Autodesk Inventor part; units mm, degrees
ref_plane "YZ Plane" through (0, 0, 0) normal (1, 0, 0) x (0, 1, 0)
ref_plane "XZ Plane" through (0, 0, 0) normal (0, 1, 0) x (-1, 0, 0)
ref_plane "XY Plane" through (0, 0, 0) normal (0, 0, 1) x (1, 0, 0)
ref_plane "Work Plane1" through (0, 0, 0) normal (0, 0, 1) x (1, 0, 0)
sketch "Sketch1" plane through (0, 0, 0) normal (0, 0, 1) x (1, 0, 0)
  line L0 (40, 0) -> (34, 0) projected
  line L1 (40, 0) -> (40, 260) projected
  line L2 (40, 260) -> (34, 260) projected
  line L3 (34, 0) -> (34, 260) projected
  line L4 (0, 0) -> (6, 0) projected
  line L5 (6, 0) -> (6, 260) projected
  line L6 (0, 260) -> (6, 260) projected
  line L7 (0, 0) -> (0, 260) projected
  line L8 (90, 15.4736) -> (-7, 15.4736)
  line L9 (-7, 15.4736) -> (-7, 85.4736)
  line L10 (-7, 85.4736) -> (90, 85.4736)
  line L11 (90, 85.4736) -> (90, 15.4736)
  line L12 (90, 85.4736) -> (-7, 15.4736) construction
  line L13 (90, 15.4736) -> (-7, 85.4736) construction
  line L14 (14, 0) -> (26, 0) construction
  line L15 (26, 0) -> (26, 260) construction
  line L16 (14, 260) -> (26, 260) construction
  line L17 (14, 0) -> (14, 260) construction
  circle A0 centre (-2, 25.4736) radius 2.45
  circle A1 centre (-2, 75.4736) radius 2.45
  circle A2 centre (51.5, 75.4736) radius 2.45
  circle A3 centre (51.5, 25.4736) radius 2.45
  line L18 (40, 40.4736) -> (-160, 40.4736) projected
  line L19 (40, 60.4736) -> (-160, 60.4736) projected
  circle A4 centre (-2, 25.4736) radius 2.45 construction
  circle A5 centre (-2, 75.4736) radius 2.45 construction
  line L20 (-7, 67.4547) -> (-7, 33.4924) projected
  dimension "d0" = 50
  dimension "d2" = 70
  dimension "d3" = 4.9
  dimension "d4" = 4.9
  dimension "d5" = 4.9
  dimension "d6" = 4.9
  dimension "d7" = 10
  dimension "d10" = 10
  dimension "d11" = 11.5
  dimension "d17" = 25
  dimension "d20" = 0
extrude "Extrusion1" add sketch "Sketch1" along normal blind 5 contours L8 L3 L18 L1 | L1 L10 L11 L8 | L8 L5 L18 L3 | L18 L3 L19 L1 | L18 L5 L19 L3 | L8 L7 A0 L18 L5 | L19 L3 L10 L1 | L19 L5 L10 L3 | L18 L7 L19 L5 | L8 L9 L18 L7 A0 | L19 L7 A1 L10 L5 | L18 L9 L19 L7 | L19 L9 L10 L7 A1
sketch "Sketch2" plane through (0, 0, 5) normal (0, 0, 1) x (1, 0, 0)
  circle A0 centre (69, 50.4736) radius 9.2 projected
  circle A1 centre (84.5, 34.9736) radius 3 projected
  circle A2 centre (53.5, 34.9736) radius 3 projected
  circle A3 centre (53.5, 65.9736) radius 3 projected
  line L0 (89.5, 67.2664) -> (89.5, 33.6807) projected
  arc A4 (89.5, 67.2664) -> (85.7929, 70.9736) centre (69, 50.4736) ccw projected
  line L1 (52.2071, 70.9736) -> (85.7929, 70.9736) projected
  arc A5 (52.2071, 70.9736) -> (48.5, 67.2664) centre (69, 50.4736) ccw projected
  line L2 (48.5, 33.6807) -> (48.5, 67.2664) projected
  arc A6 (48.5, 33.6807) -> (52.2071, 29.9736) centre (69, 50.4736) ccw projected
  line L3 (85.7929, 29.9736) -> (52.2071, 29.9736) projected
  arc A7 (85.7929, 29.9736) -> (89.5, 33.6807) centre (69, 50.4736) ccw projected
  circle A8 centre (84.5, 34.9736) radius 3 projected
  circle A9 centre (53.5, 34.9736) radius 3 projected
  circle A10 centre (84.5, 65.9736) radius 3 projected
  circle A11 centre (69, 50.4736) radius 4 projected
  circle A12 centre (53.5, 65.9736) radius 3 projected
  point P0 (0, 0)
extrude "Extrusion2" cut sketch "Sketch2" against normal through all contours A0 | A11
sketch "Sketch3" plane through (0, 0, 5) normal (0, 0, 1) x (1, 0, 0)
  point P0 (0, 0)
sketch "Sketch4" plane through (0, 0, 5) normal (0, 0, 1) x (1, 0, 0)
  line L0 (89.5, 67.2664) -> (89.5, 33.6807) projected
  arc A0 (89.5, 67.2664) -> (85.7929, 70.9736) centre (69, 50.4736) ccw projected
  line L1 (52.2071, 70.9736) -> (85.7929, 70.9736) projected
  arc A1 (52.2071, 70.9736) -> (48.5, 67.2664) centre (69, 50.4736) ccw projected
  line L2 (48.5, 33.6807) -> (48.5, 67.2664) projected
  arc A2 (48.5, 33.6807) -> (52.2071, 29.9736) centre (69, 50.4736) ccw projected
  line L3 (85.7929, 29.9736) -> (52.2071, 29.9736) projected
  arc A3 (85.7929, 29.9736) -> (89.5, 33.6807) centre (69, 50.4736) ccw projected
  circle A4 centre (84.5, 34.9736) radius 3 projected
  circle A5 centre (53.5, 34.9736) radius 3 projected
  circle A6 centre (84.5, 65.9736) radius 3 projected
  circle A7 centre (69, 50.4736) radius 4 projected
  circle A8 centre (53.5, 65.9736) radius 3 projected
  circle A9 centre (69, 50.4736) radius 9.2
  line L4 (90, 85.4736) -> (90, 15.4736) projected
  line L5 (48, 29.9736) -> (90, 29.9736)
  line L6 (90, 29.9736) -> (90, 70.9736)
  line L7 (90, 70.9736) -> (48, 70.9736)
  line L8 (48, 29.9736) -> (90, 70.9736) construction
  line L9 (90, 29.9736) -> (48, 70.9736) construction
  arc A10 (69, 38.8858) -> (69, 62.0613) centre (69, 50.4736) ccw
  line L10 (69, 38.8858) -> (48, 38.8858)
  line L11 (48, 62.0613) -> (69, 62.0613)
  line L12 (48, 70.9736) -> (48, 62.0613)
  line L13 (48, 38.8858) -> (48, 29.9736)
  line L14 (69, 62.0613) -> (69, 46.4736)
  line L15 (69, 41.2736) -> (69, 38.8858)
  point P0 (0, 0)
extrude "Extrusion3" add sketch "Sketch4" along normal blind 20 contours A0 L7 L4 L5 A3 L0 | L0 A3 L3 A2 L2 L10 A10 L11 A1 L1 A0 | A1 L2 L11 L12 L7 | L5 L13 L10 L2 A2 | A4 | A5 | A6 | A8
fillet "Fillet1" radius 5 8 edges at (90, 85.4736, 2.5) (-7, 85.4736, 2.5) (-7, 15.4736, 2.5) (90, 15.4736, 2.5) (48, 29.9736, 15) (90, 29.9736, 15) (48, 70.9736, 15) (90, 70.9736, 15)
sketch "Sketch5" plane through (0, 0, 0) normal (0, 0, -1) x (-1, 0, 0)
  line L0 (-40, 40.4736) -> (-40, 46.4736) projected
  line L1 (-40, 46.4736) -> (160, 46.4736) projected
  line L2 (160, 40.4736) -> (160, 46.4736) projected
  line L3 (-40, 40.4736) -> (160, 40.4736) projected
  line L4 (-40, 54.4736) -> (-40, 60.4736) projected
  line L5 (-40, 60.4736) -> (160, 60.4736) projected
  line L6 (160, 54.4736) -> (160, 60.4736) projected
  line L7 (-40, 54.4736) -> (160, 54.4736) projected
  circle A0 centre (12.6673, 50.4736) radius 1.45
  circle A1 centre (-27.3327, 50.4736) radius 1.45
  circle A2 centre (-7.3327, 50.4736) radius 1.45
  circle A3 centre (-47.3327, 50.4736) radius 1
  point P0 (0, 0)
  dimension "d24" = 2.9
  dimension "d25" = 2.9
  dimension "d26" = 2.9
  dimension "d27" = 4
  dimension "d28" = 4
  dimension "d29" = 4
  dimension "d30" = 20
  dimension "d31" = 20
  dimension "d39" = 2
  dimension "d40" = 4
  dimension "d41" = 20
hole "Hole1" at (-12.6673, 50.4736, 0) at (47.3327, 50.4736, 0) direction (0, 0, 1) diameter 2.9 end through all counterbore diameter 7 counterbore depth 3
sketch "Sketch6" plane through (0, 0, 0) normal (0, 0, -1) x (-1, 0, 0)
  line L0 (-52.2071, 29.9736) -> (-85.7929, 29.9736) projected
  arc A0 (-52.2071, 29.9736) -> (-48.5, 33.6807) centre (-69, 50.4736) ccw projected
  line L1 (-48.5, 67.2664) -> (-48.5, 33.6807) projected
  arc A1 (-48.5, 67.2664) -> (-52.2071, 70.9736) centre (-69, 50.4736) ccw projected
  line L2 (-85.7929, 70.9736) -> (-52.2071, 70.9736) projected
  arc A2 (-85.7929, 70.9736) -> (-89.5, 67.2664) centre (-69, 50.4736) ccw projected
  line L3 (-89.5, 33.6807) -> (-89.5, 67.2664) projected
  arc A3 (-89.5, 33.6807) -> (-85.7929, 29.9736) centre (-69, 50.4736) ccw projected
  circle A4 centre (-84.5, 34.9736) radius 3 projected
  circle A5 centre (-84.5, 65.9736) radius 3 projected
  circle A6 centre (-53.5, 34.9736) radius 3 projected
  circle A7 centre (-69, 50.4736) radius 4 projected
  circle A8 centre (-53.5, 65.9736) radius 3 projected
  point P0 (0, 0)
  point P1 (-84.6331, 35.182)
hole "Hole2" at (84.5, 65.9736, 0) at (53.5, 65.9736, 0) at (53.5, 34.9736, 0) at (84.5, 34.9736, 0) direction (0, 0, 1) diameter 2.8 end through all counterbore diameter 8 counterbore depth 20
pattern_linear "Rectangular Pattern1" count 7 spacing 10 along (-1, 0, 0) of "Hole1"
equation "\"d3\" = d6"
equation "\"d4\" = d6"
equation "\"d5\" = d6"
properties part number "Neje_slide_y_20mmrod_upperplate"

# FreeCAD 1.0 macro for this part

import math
import FreeCAD as App
import Part
import Sketcher
from FreeCAD import Vector


def edges_at(feature, points):
    """Names of the edges that pass closest to the given points."""
    edges = feature.Shape.Edges
    near = lambda p: min(range(len(edges)), key=lambda i: edges[i].distToShape(Part.Vertex(*p))[0])
    return sorted({f"Edge{near(p) + 1}" for p in points})


def add_polygon(sketch, points):
    """Adds a closed chain of lines whose ends are joined by coincident constraints."""
    first, n = sketch.GeometryCount, len(points)
    for a, b in zip(points, points[1:] + points[:1]):
        sketch.addGeometry(Part.LineSegment(App.Vector(*a, 0), App.Vector(*b, 0)), False)
    for i in range(n):
        sketch.addConstraint(Sketcher.Constraint("Coincident", first + i, 2, first + (i + 1) % n, 1))

doc = App.newDocument("Part")
body = doc.addObject("PartDesign::Body", "Body")

sketch1 = body.newObject("Sketcher::SketchObject", "Sketch")
sketch1.AttachmentSupport = (doc.getObject("XY_Plane"), [""])
sketch1.MapMode = "FlatFace"
add_polygon(sketch1, [(90, 15.4736), (90, 85.4736), (-7, 85.4736), (-7, 15.4736)])
sketch1.addGeometry(Part.Circle(Vector(51.5, 75.4736, 0), Vector(0, 0, 1), 2.45), False)
sketch1.addGeometry(Part.Circle(Vector(51.5, 25.4736, 0), Vector(0, 0, 1), 2.45), False)
sketch1.addGeometry(Part.Circle(Vector(-2, 25.4736, 0), Vector(0, 0, 1), 2.45), False)
sketch1.addGeometry(Part.Circle(Vector(-2, 75.4736, 0), Vector(0, 0, 1), 2.45), False)
sketch1.addConstraint(Sketcher.Constraint("Vertical", 0))
sketch1.addConstraint(Sketcher.Constraint("Horizontal", 1))
sketch1.addConstraint(Sketcher.Constraint("Vertical", 2))
sketch1.addConstraint(Sketcher.Constraint("Horizontal", 3))
sketch1.addConstraint(Sketcher.Constraint("Equal", 4, 5))
sketch1.addConstraint(Sketcher.Constraint("Equal", 5, 6))
sketch1.addConstraint(Sketcher.Constraint("Equal", 6, 7))
sketch1.addConstraint(Sketcher.Constraint("Horizontal", 5, 3, 6, 3))
sketch1.addConstraint(Sketcher.Constraint("Horizontal", 4, 3, 7, 3))
sketch1.addConstraint(Sketcher.Constraint("Vertical", 4, 3, 5, 3))
sketch1.addConstraint(Sketcher.Constraint("Vertical", 6, 3, 7, 3))
sketch1.addConstraint(Sketcher.Constraint("Diameter", 4, 4.9))
sketch1.addConstraint(Sketcher.Constraint("DistanceY", 0, 1, 0, 2, 70.0))
sketch1.addConstraint(Sketcher.Constraint("DistanceY", 5, 3, 4, 3, 50.0))
sketch1.addConstraint(Sketcher.Constraint("DistanceY", 4, 3, 0, 2, 10.0))
sketch1.addConstraint(Sketcher.Constraint("DistanceX", 1, 2, 1, 1, 97.0))
sketch1.addConstraint(Sketcher.Constraint("DistanceX", 6, 3, -1, 1, 2.0))
sketch1.addConstraint(Sketcher.Constraint("DistanceX", -1, 1, 0, 2, 90.0))
sketch1.addConstraint(Sketcher.Constraint("DistanceX", -1, 1, 4, 3, 51.5))
sketch1.addConstraint(Sketcher.Constraint("DistanceY", -1, 1, 4, 3, 75.4736))
pad1 = body.newObject("PartDesign::Pad", "Pad")
pad1.Profile = sketch1
pad1.Length = 5

sketch2 = body.newObject("Sketcher::SketchObject", "Sketch001")
sketch2.AttachmentSupport = (doc.getObject("XY_Plane"), [""])
sketch2.MapMode = "FlatFace"
sketch2.AttachmentOffset = App.Placement(Vector(0, 0, 5), App.Rotation())
sketch2.addGeometry(Part.Circle(Vector(69, 50.4736, 0), Vector(0, 0, 1), 9.2), False)
sketch2.addConstraint(Sketcher.Constraint("Diameter", 0, 18.4))
sketch2.addConstraint(Sketcher.Constraint("DistanceX", -1, 1, 0, 3, 69.0))
sketch2.addConstraint(Sketcher.Constraint("DistanceY", -1, 1, 0, 3, 50.4736))
pocket1 = body.newObject("PartDesign::Pocket", "Pocket")
pocket1.Profile = sketch2
pocket1.Type = "ThroughAll"

sketch3 = body.newObject("Sketcher::SketchObject", "Sketch002")
sketch3.AttachmentSupport = (doc.getObject("XY_Plane"), [""])
sketch3.MapMode = "FlatFace"
sketch3.AttachmentOffset = App.Placement(Vector(0, 0, 5), App.Rotation())
sketch3.addGeometry(Part.LineSegment(Vector(90, 70.9736, 0), Vector(48, 70.9736, 0)), False)
sketch3.addGeometry(Part.LineSegment(Vector(48, 70.9736, 0), Vector(48, 62.0613, 0)), False)
sketch3.addGeometry(Part.LineSegment(Vector(48, 62.0613, 0), Vector(69, 62.0613, 0)), False)
sketch3.addGeometry(Part.ArcOfCircle(Part.Circle(Vector(69, 50.4736, 0), Vector(0, 0, 1), 11.5878), math.radians(-90), math.radians(90)), False)
sketch3.addGeometry(Part.LineSegment(Vector(69, 38.8858, 0), Vector(48, 38.8858, 0)), False)
sketch3.addGeometry(Part.LineSegment(Vector(48, 38.8858, 0), Vector(48, 29.9736, 0)), False)
sketch3.addGeometry(Part.LineSegment(Vector(48, 29.9736, 0), Vector(90, 29.9736, 0)), False)
sketch3.addGeometry(Part.LineSegment(Vector(90, 29.9736, 0), Vector(90, 70.9736, 0)), False)
sketch3.addConstraint(Sketcher.Constraint("Coincident", 0, 2, 1, 1))
sketch3.addConstraint(Sketcher.Constraint("Coincident", 1, 2, 2, 1))
sketch3.addConstraint(Sketcher.Constraint("Tangent", 2, 2, 3, 2))
sketch3.addConstraint(Sketcher.Constraint("Tangent", 3, 1, 4, 1))
sketch3.addConstraint(Sketcher.Constraint("Coincident", 4, 2, 5, 1))
sketch3.addConstraint(Sketcher.Constraint("Coincident", 5, 2, 6, 1))
sketch3.addConstraint(Sketcher.Constraint("Coincident", 6, 2, 7, 1))
sketch3.addConstraint(Sketcher.Constraint("Coincident", 7, 2, 0, 1))
sketch3.addConstraint(Sketcher.Constraint("Horizontal", 0))
sketch3.addConstraint(Sketcher.Constraint("Vertical", 1))
sketch3.addConstraint(Sketcher.Constraint("Horizontal", 2))
sketch3.addConstraint(Sketcher.Constraint("Horizontal", 4))
sketch3.addConstraint(Sketcher.Constraint("Vertical", 5))
sketch3.addConstraint(Sketcher.Constraint("Horizontal", 6))
sketch3.addConstraint(Sketcher.Constraint("Vertical", 7))
sketch3.addConstraint(Sketcher.Constraint("Vertical", 1, 2, 4, 2))
sketch3.addConstraint(Sketcher.Constraint("Equal", 1, 5))
sketch3.addConstraint(Sketcher.Constraint("DistanceX", 0, 2, 0, 1, 42.0))
sketch3.addConstraint(Sketcher.Constraint("DistanceX", 2, 1, 2, 2, 21.0))
sketch3.addConstraint(Sketcher.Constraint("DistanceY", 7, 1, 7, 2, 41.0))
sketch3.addConstraint(Sketcher.Constraint("DistanceX", -1, 1, 3, 3, 69.0))
sketch3.addConstraint(Sketcher.Constraint("Radius", 3, 11.5878))
sketch3.addConstraint(Sketcher.Constraint("DistanceY", -1, 1, 3, 3, 50.4736))
pad2 = body.newObject("PartDesign::Pad", "Pad001")
pad2.Profile = sketch3
pad2.Length = 20
doc.recompute()

fillet = body.newObject("PartDesign::Fillet", "Fillet")
fillet.Base = (pad2, edges_at(pad2, [
    (90, 85.474, 2.5),
    (-7, 85.474, 2.5),
    (-7, 15.474, 2.5),
    (90, 15.474, 2.5),
    (48, 29.974, 15),
    (90, 29.974, 15),
    (48, 70.974, 15),
    (90, 70.974, 15),
]))
fillet.Radius = 5

sketch4 = body.newObject("Sketcher::SketchObject", "Sketch003")
sketch4.AttachmentSupport = (doc.getObject("XY_Plane"), [""])
sketch4.MapMode = "FlatFace"
sketch4.addGeometry(Part.Circle(Vector(-12.6673, 50.4736, 0), Vector(0, 0, 1), 1.45), False)
sketch4.addGeometry(Part.Circle(Vector(47.3327, 50.4736, 0), Vector(0, 0, 1), 1.45), False)
sketch4.addConstraint(Sketcher.Constraint("Equal", 0, 1))
sketch4.addConstraint(Sketcher.Constraint("Horizontal", 0, 3, 1, 3))
sketch4.addConstraint(Sketcher.Constraint("Diameter", 0, 2.9))
sketch4.addConstraint(Sketcher.Constraint("DistanceX", 0, 3, 1, 3, 60.0))
sketch4.addConstraint(Sketcher.Constraint("DistanceX", 0, 3, -1, 1, 12.6673))
sketch4.addConstraint(Sketcher.Constraint("DistanceY", -1, 1, 0, 3, 50.4736))
doc.recompute()
hole = body.newObject("PartDesign::Hole", "Hole")
hole.Profile = sketch4
hole.ThreadType = "None"
hole.Diameter = 2.9
hole.DepthType = "ThroughAll"
hole.HoleCutType = "Counterbore"
hole.HoleCutDiameter = 7
hole.HoleCutDepth = 3
hole.Reversed = True

sketch5 = body.newObject("Sketcher::SketchObject", "Sketch004")
sketch5.AttachmentSupport = (doc.getObject("XY_Plane"), [""])
sketch5.MapMode = "FlatFace"
sketch5.addGeometry(Part.Circle(Vector(84.5, 65.9736, 0), Vector(0, 0, 1), 1.4), False)
sketch5.addGeometry(Part.Circle(Vector(53.5, 65.9736, 0), Vector(0, 0, 1), 1.4), False)
sketch5.addGeometry(Part.Circle(Vector(53.5, 34.9736, 0), Vector(0, 0, 1), 1.4), False)
sketch5.addGeometry(Part.Circle(Vector(84.5, 34.9736, 0), Vector(0, 0, 1), 1.4), False)
sketch5.addConstraint(Sketcher.Constraint("Equal", 0, 1))
sketch5.addConstraint(Sketcher.Constraint("Equal", 1, 2))
sketch5.addConstraint(Sketcher.Constraint("Equal", 2, 3))
sketch5.addConstraint(Sketcher.Constraint("Horizontal", 0, 3, 1, 3))
sketch5.addConstraint(Sketcher.Constraint("Horizontal", 2, 3, 3, 3))
sketch5.addConstraint(Sketcher.Constraint("Vertical", 1, 3, 2, 3))
sketch5.addConstraint(Sketcher.Constraint("Vertical", 0, 3, 3, 3))
sketch5.addConstraint(Sketcher.Constraint("Diameter", 0, 2.8))
sketch5.addConstraint(Sketcher.Constraint("DistanceX", 1, 3, 0, 3, 31.0))
sketch5.addConstraint(Sketcher.Constraint("DistanceY", 2, 3, 1, 3, 31.0))
sketch5.addConstraint(Sketcher.Constraint("DistanceX", -1, 1, 0, 3, 84.5))
sketch5.addConstraint(Sketcher.Constraint("DistanceY", -1, 1, 0, 3, 65.9736))
doc.recompute()
hole2 = body.newObject("PartDesign::Hole", "Hole001")
hole2.Profile = sketch5
hole2.ThreadType = "None"
hole2.Diameter = 2.8
hole2.DepthType = "ThroughAll"
hole2.HoleCutType = "Counterbore"
hole2.HoleCutDiameter = 8
hole2.HoleCutDepth = 20
hole2.Reversed = True
doc.recompute()

linearpattern = body.newObject("PartDesign::LinearPattern", "LinearPattern")
linearpattern.Originals = [hole]
linearpattern.Direction = (doc.getObject("X_Axis"), [""])
linearpattern.Mode = "offset"
linearpattern.Offset = 10
linearpattern.Occurrences = 7
linearpattern.Reversed = True
body.Tip = linearpattern

doc.recompute()
